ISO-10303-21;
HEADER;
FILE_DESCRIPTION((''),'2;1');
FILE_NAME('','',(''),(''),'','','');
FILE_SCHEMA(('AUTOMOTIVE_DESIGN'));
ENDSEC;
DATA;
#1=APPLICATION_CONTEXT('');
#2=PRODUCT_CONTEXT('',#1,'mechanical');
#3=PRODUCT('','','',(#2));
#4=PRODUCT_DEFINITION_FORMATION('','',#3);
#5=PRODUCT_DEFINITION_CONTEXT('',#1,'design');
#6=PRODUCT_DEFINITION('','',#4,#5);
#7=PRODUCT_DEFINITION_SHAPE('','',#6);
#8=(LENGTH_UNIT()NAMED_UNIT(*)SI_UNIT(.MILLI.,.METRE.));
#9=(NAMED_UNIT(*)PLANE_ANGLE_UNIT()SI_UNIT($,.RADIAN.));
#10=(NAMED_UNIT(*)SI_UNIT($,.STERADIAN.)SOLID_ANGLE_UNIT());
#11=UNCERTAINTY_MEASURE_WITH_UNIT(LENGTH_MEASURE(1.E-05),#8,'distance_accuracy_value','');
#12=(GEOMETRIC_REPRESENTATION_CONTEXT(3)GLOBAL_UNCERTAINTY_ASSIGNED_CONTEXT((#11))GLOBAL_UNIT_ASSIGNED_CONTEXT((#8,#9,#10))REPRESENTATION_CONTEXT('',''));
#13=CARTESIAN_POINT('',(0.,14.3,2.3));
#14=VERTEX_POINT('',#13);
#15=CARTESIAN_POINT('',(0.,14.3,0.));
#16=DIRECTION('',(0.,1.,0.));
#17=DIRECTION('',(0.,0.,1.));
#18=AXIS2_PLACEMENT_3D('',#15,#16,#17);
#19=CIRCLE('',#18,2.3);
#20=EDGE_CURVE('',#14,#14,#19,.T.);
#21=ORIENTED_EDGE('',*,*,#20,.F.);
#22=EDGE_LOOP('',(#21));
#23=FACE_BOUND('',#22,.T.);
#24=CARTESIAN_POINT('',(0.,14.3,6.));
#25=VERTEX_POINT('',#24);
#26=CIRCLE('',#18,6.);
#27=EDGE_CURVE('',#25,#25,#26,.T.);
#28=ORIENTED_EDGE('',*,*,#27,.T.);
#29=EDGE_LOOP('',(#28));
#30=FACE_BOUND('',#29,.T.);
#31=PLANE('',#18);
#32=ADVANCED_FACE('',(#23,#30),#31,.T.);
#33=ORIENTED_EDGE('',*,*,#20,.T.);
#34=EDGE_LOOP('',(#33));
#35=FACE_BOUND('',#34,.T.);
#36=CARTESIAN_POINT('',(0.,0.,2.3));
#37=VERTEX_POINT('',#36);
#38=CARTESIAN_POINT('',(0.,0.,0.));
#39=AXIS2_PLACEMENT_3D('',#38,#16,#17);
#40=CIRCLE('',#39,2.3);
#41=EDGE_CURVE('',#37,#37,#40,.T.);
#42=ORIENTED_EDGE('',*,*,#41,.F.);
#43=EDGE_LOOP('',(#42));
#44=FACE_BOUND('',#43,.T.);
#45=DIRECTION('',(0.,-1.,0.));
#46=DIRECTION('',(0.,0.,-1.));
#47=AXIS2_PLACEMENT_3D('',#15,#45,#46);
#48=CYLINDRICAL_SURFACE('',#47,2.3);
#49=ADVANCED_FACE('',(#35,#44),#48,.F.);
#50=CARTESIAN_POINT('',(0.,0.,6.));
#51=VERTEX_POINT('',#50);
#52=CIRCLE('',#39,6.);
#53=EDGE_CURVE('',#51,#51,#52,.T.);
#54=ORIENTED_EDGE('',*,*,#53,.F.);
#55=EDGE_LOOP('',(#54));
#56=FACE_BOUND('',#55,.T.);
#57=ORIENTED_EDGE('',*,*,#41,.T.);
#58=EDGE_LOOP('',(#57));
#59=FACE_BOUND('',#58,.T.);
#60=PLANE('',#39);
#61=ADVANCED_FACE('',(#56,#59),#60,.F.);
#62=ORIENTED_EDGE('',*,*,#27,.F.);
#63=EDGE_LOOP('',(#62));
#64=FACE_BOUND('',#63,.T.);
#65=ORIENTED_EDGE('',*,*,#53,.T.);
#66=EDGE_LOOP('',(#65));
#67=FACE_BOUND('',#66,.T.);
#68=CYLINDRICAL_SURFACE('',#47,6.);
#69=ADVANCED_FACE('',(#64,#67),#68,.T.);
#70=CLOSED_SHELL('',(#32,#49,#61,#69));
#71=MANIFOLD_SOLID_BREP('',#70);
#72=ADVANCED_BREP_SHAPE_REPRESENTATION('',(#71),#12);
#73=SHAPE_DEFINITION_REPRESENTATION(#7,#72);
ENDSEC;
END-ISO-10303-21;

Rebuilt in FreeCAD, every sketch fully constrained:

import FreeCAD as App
import Part
import Sketcher
from FreeCAD import Vector
Q = App.Units.Quantity

doc = App.newDocument("Part")
body = doc.addObject("PartDesign::Body", "Body")

# Sketch on XZ plane
sketch1 = doc.addObject("Sketcher::SketchObject", "Sketch")
body.addObject(sketch1)
sketch1.AttachmentSupport = (doc.XZ_Plane, [""])
sketch1.MapMode = "FlatFace"
sketch1.addGeometry(Part.Circle(Vector(0, 0, 0), Vector(0, 0, 1), 6), False)
sketch1.addGeometry(Part.Circle(Vector(0, 0, 0), Vector(0, 0, 1), 2.3), False)
sketch1.addConstraint(Sketcher.Constraint("Coincident", 0, 3, -1, 1))
sketch1.addConstraint(Sketcher.Constraint("Coincident", 1, 3, -1, 1))
sketch1.addConstraint(Sketcher.Constraint("Diameter", 0, Q("12 mm")))
sketch1.addConstraint(Sketcher.Constraint("Diameter", 1, Q("4.6 mm")))
pad1 = doc.addObject("PartDesign::Pad", "Pad")
body.addObject(pad1)
pad1.Profile = sketch1
pad1.Length = 14.3
pad1.Reversed = True

doc.recompute()
